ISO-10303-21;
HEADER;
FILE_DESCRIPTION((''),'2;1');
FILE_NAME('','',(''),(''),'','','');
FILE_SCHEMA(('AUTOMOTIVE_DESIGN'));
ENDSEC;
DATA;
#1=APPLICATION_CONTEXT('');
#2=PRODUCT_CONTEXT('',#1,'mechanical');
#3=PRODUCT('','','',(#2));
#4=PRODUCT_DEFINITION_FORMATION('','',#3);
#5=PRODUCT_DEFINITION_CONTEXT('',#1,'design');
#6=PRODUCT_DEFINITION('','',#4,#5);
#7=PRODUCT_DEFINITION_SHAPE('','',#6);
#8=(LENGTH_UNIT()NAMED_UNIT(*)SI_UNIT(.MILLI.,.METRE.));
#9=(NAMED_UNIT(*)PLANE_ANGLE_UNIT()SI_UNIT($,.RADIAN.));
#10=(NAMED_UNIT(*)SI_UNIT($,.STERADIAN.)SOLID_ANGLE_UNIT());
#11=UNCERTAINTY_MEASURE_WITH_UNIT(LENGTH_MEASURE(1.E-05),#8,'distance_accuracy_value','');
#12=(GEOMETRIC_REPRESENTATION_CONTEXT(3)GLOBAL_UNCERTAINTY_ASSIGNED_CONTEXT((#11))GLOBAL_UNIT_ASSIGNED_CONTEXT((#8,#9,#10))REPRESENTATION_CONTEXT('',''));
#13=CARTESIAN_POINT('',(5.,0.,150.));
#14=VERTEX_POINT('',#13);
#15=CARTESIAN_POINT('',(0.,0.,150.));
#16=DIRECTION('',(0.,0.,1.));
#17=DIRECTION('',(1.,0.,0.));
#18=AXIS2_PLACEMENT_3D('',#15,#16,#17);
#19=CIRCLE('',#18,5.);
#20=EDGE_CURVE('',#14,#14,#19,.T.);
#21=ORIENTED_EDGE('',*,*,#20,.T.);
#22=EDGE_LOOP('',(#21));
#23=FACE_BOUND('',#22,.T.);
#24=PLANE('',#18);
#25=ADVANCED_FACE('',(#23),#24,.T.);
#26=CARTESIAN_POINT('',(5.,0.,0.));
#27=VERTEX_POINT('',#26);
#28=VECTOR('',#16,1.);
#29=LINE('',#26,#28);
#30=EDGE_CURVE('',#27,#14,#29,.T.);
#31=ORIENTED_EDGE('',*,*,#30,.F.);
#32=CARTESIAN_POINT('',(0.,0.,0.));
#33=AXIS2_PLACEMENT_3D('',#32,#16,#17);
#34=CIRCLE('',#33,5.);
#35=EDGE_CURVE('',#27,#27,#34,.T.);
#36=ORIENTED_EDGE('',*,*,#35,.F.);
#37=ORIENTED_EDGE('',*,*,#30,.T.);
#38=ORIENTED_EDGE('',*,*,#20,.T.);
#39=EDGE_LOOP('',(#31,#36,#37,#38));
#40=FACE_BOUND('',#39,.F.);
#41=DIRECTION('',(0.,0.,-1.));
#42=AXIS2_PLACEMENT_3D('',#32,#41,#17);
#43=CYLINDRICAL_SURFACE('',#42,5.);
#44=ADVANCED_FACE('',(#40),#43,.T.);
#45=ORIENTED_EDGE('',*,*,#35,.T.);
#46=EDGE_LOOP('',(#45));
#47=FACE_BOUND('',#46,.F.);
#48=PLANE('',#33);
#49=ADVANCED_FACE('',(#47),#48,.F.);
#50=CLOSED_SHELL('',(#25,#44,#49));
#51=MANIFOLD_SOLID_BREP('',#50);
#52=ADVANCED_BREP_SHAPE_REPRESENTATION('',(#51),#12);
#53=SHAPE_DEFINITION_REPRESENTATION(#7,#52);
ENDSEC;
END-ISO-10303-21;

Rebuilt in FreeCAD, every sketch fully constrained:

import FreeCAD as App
import Part
import Sketcher

V = App.Vector

doc = App.newDocument("Part")
body = doc.addObject("PartDesign::Body", "Body")

sketch1 = body.newObject("Sketcher::SketchObject", "Sketch")
sketch1.AttachmentSupport = (doc.getObject("XY_Plane"), [""])
sketch1.MapMode = "FlatFace"
sketch1.addGeometry(Part.Circle(V(0, 0, 0), V(0, 0, 1), 5), False)
sketch1.addConstraint(Sketcher.Constraint("Coincident", 0, 3, -1, 1))
sketch1.addConstraint(Sketcher.Constraint("Diameter", 0, 10.0))
pad1 = body.newObject("PartDesign::Pad", "Pad")
pad1.Profile = sketch1
pad1.Length = 150

doc.recompute()
